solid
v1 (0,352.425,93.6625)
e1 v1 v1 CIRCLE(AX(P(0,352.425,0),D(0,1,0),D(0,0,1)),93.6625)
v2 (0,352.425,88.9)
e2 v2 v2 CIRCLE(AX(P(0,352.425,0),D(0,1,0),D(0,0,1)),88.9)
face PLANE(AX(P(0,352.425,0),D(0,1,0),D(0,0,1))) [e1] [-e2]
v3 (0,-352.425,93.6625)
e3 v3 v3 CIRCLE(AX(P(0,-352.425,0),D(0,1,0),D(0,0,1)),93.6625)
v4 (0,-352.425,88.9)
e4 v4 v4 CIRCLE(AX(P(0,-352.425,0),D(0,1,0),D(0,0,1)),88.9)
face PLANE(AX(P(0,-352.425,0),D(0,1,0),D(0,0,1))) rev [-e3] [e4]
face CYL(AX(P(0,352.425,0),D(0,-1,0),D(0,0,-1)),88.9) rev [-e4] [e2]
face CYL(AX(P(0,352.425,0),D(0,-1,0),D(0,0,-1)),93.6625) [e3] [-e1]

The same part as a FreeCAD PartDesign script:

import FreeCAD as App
import Part
import Sketcher
from FreeCAD import Vector
Q = App.Units.Quantity

doc = App.newDocument("Part")
body = doc.addObject("PartDesign::Body", "Body")

sketch1 = body.newObject("Sketcher::SketchObject", "Sketch")
sketch1.AttachmentSupport = (doc.getObject("XZ_Plane"), [""])
sketch1.MapMode = "FlatFace"
sketch1.addGeometry([
    Part.Circle(Vector(0, 0, 0), Vector(0, 0, 1), 93.6625),
    Part.Circle(Vector(0, 0, 0), Vector(0, 0, 1), 88.9),
], False)
sketch1.addConstraint([
    Sketcher.Constraint("Coincident", 0, 3, -1, 1),
    Sketcher.Constraint("Coincident", 1, 3, -1, 1),
    Sketcher.Constraint("Diameter", 1, Q("7 in")),
    Sketcher.Constraint("Diameter", 0, Q("7.375 in")),
])
pad1 = body.newObject("PartDesign::Pad", "Pad")
pad1.Profile = sketch1
pad1.Length = Q("27.75 in")
pad1.Midplane = True

doc.recompute()
